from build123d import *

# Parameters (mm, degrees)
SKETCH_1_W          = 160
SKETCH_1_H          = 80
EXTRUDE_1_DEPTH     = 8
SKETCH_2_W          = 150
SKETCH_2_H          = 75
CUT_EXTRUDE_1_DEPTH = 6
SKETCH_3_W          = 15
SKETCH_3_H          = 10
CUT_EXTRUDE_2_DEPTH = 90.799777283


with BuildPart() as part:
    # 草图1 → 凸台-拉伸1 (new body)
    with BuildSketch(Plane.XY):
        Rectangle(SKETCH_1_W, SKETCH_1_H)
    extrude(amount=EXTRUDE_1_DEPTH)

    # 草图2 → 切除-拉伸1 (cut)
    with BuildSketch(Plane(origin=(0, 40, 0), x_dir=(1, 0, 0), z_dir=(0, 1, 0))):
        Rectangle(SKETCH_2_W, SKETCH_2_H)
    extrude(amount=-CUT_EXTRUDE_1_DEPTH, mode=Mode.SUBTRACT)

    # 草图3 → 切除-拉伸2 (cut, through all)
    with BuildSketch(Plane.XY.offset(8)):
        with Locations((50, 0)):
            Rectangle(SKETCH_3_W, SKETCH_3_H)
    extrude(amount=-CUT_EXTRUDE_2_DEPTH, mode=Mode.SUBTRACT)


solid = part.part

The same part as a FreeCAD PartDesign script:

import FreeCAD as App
import Part
import Sketcher
from FreeCAD import Vector

doc = App.newDocument("Part")
body = doc.addObject("PartDesign::Body", "Body")

sketch1 = doc.addObject("Sketcher::SketchObject", "Sketch")
body.addObject(sketch1)
sketch1.AttachmentSupport = (doc.XY_Plane, [""])
sketch1.MapMode = "FlatFace"
sketch1.addGeometry([
    Part.LineSegment(Vector(-80, 40, 0), Vector(-80, -40, 0)),
    Part.LineSegment(Vector(-80, -40, 0), Vector(80, -40, 0)),
    Part.LineSegment(Vector(80, -40, 0), Vector(80, 40, 0)),
    Part.LineSegment(Vector(80, 40, 0), Vector(-80, 40, 0)),
], False)
sketch1.addConstraint([
    Sketcher.Constraint("Coincident", 0, 2, 1, 1),
    Sketcher.Constraint("Coincident", 1, 2, 2, 1),
    Sketcher.Constraint("Coincident", 2, 2, 3, 1),
    Sketcher.Constraint("Coincident", 3, 2, 0, 1),
    Sketcher.Constraint("Vertical", 0),
    Sketcher.Constraint("Horizontal", 1),
    Sketcher.Constraint("Vertical", 2),
    Sketcher.Constraint("Horizontal", 3),
    Sketcher.Constraint("Symmetric", 0, 2, 2, 2, -1, 1),
    Sketcher.Constraint("DistanceX", 1, 1, 1, 2, 160.0),
    Sketcher.Constraint("DistanceY", 0, 2, 0, 1, 80.0),
])
pad1 = doc.addObject("PartDesign::Pad", "Pad")
body.addObject(pad1)
pad1.Profile = sketch1
pad1.Length = 8

sketch2 = doc.addObject("Sketcher::SketchObject", "Sketch001")
body.addObject(sketch2)
sketch2.AttachmentSupport = (doc.XZ_Plane, [""])
sketch2.MapMode = "FlatFace"
sketch2.AttachmentOffset = App.Placement(Vector(0, 0, -40), App.Rotation())
sketch2.addGeometry([
    Part.LineSegment(Vector(-75, -37.5, 0), Vector(-75, 37.5, 0)),
    Part.LineSegment(Vector(-75, 37.5, 0), Vector(75, 37.5, 0)),
    Part.LineSegment(Vector(75, 37.5, 0), Vector(75, -37.5, 0)),
    Part.LineSegment(Vector(75, -37.5, 0), Vector(-75, -37.5, 0)),
], False)
sketch2.addConstraint([
    Sketcher.Constraint("Coincident", 0, 2, 1, 1),
    Sketcher.Constraint("Coincident", 1, 2, 2, 1),
    Sketcher.Constraint("Coincident", 2, 2, 3, 1),
    Sketcher.Constraint("Coincident", 3, 2, 0, 1),
    Sketcher.Constraint("Vertical", 0),
    Sketcher.Constraint("Horizontal", 1),
    Sketcher.Constraint("Vertical", 2),
    Sketcher.Constraint("Horizontal", 3),
    Sketcher.Constraint("Symmetric", 0, 2, 2, 2, -1, 1),
    Sketcher.Constraint("DistanceX", 1, 1, 1, 2, 150.0),
    Sketcher.Constraint("DistanceY", 0, 1, 0, 2, 75.0),
])
pocket1 = doc.addObject("PartDesign::Pocket", "Pocket")
body.addObject(pocket1)
pocket1.Profile = sketch2
pocket1.Length = 6
pocket1.Reversed = True

sketch3 = doc.addObject("Sketcher::SketchObject", "Sketch002")
body.addObject(sketch3)
sketch3.AttachmentSupport = (doc.XY_Plane, [""])
sketch3.MapMode = "FlatFace"
sketch3.AttachmentOffset = App.Placement(Vector(0, 0, 8), App.Rotation())
sketch3.addGeometry([
    Part.LineSegment(Vector(42.5, 5, 0), Vector(42.5, -5, 0)),
    Part.LineSegment(Vector(42.5, -5, 0), Vector(57.5, -5, 0)),
    Part.LineSegment(Vector(57.5, -5, 0), Vector(57.5, 5, 0)),
    Part.LineSegment(Vector(57.5, 5, 0), Vector(42.5, 5, 0)),
], False)
sketch3.addConstraint([
    Sketcher.Constraint("Coincident", 0, 2, 1, 1),
    Sketcher.Constraint("Coincident", 1, 2, 2, 1),
    Sketcher.Constraint("Coincident", 2, 2, 3, 1),
    Sketcher.Constraint("Coincident", 3, 2, 0, 1),
    Sketcher.Constraint("Vertical", 0),
    Sketcher.Constraint("Horizontal", 1),
    Sketcher.Constraint("Vertical", 2),
    Sketcher.Constraint("Horizontal", 3),
    Sketcher.Constraint("DistanceX", 1, 1, 1, 2, 15.0),
    Sketcher.Constraint("DistanceY", 0, 2, 0, 1, 10.0),
    Sketcher.Constraint("DistanceY", 0, 2, -1, 1, 5.0),
    Sketcher.Constraint("DistanceX", -1, 1, 0, 2, 42.5),
])
pocket2 = doc.addObject("PartDesign::Pocket", "Pocket001")
body.addObject(pocket2)
pocket2.Profile = sketch3
pocket2.Type = "ThroughAll"

doc.recompute()
